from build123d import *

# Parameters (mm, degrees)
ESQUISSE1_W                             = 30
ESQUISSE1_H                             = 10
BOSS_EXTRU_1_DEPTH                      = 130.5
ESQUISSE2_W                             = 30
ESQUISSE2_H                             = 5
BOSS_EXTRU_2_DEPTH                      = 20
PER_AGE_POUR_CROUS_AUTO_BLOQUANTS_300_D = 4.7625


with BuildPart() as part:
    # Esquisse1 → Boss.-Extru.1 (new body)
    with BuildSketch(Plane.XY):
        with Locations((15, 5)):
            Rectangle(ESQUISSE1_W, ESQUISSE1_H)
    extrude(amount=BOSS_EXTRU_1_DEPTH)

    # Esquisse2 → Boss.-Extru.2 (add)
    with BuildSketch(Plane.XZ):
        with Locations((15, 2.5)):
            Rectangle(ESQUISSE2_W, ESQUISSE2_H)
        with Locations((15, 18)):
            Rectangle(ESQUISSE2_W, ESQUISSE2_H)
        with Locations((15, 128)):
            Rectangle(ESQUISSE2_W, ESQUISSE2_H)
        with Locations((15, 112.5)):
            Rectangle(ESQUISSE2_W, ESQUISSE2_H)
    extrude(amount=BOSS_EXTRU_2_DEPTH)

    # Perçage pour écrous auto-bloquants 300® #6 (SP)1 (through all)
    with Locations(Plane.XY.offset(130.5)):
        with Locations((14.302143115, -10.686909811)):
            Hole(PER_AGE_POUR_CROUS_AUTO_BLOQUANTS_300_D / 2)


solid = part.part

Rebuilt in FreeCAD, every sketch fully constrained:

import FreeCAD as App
import Part
import Sketcher
from FreeCAD import Vector
Q = App.Units.Quantity


def add_polygon(sketch, points):
    """Adds a closed chain of lines whose ends are joined by coincident constraints."""
    first, n = sketch.GeometryCount, len(points)
    for a, b in zip(points, points[1:] + points[:1]):
        sketch.addGeometry(Part.LineSegment(App.Vector(*a, 0), App.Vector(*b, 0)), False)
    for i in range(n):
        sketch.addConstraint(Sketcher.Constraint("Coincident", first + i, 2, first + (i + 1) % n, 1))

doc = App.newDocument("Part")
body = doc.addObject("PartDesign::Body", "Body")

# Sketch on XY plane
sketch1 = doc.addObject("Sketcher::SketchObject", "Sketch")
body.addObject(sketch1)
sketch1.AttachmentSupport = (doc.XY_Plane, [""])
sketch1.MapMode = "FlatFace"
add_polygon(sketch1, [(0, 10), (0, 0), (30, 0), (30, 10)])  # lines 0-3
sketch1.addConstraint([
    Sketcher.Constraint("Vertical", 0),
    Sketcher.Constraint("Horizontal", 1),
    Sketcher.Constraint("Vertical", 2),
    Sketcher.Constraint("Horizontal", 3),
    Sketcher.Constraint("Coincident", 0, 2, -1, 1),
    Sketcher.Constraint("DistanceX", 1, 1, 1, 2, Q("30 mm")),
    Sketcher.Constraint("DistanceY", 0, 2, 0, 1, Q("10 mm")),
])
pad1 = doc.addObject("PartDesign::Pad", "Pad")
body.addObject(pad1)
pad1.Profile = sketch1
pad1.Length = 130.5

# Sketch on XZ plane
sketch2 = doc.addObject("Sketcher::SketchObject", "Sketch001")
body.addObject(sketch2)
sketch2.AttachmentSupport = (doc.XZ_Plane, [""])
sketch2.MapMode = "FlatFace"
add_polygon(sketch2, [(0, 5), (0, 0), (30, 0), (30, 5)])  # lines 0-3
add_polygon(sketch2, [(0, 20), (0, 16), (30, 16), (30, 20)])  # lines 4-7
add_polygon(sketch2, [(0, 130), (0, 126), (30, 126), (30, 130)])  # lines 8-11
add_polygon(sketch2, [(0, 115), (0, 110), (30, 110), (30, 115)])  # lines 12-15
sketch2.addConstraint([
    Sketcher.Constraint("Vertical", 0),
    Sketcher.Constraint("Horizontal", 1),
    Sketcher.Constraint("Vertical", 2),
    Sketcher.Constraint("Horizontal", 3),
    Sketcher.Constraint("Vertical", 4),
    Sketcher.Constraint("Horizontal", 5),
    Sketcher.Constraint("Vertical", 6),
    Sketcher.Constraint("Horizontal", 7),
    Sketcher.Constraint("Vertical", 8),
    Sketcher.Constraint("Horizontal", 9),
    Sketcher.Constraint("Vertical", 10),
    Sketcher.Constraint("Horizontal", 11),
    Sketcher.Constraint("Vertical", 12),
    Sketcher.Constraint("Horizontal", 13),
    Sketcher.Constraint("Vertical", 14),
    Sketcher.Constraint("Horizontal", 15),
    Sketcher.Constraint("Coincident", 0, 2, -1, 1),
    Sketcher.Constraint("PointOnObject", 4, 2, -2),
    Sketcher.Constraint("PointOnObject", 8, 2, -2),
    Sketcher.Constraint("PointOnObject", 12, 2, -2),
    Sketcher.Constraint("Vertical", 2, 2, 5, 2),
    Sketcher.Constraint("Vertical", 6, 2, 9, 2),
    Sketcher.Constraint("Vertical", 10, 2, 13, 2),
    Sketcher.Constraint("Equal", 2, 4),
    Sketcher.Constraint("Equal", 6, 8),
    Sketcher.Constraint("Equal", 10, 12),
    Sketcher.Constraint("DistanceX", 1, 1, 1, 2, Q("30 mm")),
    Sketcher.Constraint("DistanceY", 0, 2, 0, 1, Q("5 mm")),
    Sketcher.Constraint("DistanceY", -1, 1, 12, 2, Q("110 mm")),
    Sketcher.Constraint("DistanceY", 7, 2, 8, 2, Q("105 mm")),
    Sketcher.Constraint("DistanceY", -1, 1, 4, 2, Q("15.5 mm")),
])
pad2 = doc.addObject("PartDesign::Pad", "Pad001")
body.addObject(pad2)
pad2.Profile = sketch2
pad2.Length = 20

# Sketch on XY plane
sketch3 = doc.addObject("Sketcher::SketchObject", "Sketch002")
body.addObject(sketch3)
sketch3.AttachmentSupport = (doc.XY_Plane, [""])
sketch3.MapMode = "FlatFace"
sketch3.AttachmentOffset = App.Placement(Vector(0, 0, 130.5), App.Rotation())
sketch3.addGeometry(Part.Circle(Vector(14.3, -10.7, 0), Vector(0, 0, 1), 2.4), False)
sketch3.addConstraint([
    Sketcher.Constraint("Diameter", 0, Q("4.7625 mm")),
    Sketcher.Constraint("DistanceY", 0, 3, -1, 1, Q("10.68691 mm")),
    Sketcher.Constraint("DistanceX", -1, 1, 0, 3, Q("14.302143 mm")),
])
doc.recompute()
hole = doc.addObject("PartDesign::Hole", "Hole")
body.addObject(hole)
hole.Profile = sketch3
hole.ThreadType = "None"
hole.Diameter = 4.7625
hole.DepthType = "ThroughAll"

doc.recompute()
